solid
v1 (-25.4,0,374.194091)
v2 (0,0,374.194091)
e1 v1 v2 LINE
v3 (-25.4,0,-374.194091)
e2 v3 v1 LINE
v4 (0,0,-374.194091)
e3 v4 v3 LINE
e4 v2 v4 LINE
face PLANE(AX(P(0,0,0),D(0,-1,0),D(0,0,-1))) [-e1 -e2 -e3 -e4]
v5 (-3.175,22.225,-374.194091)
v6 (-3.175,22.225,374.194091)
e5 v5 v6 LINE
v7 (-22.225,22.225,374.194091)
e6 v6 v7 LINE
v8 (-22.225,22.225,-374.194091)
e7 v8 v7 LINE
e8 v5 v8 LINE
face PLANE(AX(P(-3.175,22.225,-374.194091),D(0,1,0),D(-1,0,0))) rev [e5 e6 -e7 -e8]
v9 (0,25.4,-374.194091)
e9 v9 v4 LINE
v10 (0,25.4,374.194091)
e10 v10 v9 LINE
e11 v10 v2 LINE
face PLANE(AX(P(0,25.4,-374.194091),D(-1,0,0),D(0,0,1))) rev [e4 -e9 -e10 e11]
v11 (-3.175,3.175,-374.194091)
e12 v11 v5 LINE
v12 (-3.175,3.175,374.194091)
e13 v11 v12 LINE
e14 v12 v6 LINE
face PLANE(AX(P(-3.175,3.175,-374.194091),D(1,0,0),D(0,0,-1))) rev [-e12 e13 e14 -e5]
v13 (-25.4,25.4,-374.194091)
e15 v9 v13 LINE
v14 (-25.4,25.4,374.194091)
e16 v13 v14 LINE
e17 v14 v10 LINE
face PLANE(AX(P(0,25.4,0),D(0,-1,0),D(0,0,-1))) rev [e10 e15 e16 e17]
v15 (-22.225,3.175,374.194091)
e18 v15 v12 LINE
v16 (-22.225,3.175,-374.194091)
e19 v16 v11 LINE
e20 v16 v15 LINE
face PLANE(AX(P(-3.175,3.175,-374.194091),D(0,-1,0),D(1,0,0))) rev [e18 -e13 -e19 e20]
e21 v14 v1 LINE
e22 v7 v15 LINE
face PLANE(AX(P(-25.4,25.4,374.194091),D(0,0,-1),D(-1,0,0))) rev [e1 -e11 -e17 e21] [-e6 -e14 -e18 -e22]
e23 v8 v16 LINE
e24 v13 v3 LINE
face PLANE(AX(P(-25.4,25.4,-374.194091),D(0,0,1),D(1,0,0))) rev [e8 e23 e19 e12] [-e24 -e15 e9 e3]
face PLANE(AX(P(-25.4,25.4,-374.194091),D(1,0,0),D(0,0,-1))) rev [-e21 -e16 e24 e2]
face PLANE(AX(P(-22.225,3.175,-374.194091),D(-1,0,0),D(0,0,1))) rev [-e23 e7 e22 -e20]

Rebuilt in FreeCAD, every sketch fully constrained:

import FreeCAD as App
import Part
import Sketcher
from FreeCAD import Vector
Q = App.Units.Quantity

doc = App.newDocument("Part")
body = doc.addObject("PartDesign::Body", "Body")

# Sketch on XZ plane
sketch1 = body.newObject("Sketcher::SketchObject", "Sketch")
sketch1.AttachmentSupport = (doc.getObject("XZ_Plane"), [""])
sketch1.MapMode = "FlatFace"
sketch1.addGeometry(Part.LineSegment(Vector(-25, -374, 0), Vector(-25, 374, 0)), False)
sketch1.addGeometry(Part.LineSegment(Vector(-25, 374, 0), Vector(0, 374, 0)), False)
sketch1.addGeometry(Part.LineSegment(Vector(0, 374, 0), Vector(0, -374, 0)), False)
sketch1.addGeometry(Part.LineSegment(Vector(0, -374, 0), Vector(-25, -374, 0)), False)
sketch1.addConstraint(Sketcher.Constraint("Coincident", 0, 2, 1, 1))
sketch1.addConstraint(Sketcher.Constraint("Coincident", 1, 2, 2, 1))
sketch1.addConstraint(Sketcher.Constraint("Coincident", 2, 2, 3, 1))
sketch1.addConstraint(Sketcher.Constraint("Coincident", 3, 2, 0, 1))
sketch1.addConstraint(Sketcher.Constraint("Vertical", 0))
sketch1.addConstraint(Sketcher.Constraint("Horizontal", 1))
sketch1.addConstraint(Sketcher.Constraint("Vertical", 2))
sketch1.addConstraint(Sketcher.Constraint("Horizontal", 3))
sketch1.addConstraint(Sketcher.Constraint("Symmetric", 1, 2, 2, 2, -1, 1))
sketch1.addConstraint(Sketcher.Constraint("DistanceX", 1, 1, 1, 2, Q("1 in")))
sketch1.addConstraint(Sketcher.Constraint("DistanceY", 0, 1, 0, 2, 748.388181))
pad1 = body.newObject("PartDesign::Pad", "Pad")
pad1.Profile = sketch1
pad1.Length = Q("1 in")
pad1.Reversed = True

# Sketch on XY plane
sketch2 = body.newObject("Sketcher::SketchObject", "Sketch001")
sketch2.AttachmentSupport = (doc.getObject("XY_Plane"), [""])
sketch2.MapMode = "FlatFace"
sketch2.AttachmentOffset = App.Placement(Vector(0, 0, 374.194091), App.Rotation())
sketch2.addGeometry(Part.LineSegment(Vector(-22, 22, 0), Vector(-22, 3, 0)), False)
sketch2.addGeometry(Part.LineSegment(Vector(-22, 3, 0), Vector(-3, 3, 0)), False)
sketch2.addGeometry(Part.LineSegment(Vector(-3, 3, 0), Vector(-3, 22, 0)), False)
sketch2.addGeometry(Part.LineSegment(Vector(-3, 22, 0), Vector(-22, 22, 0)), False)
sketch2.addConstraint(Sketcher.Constraint("Coincident", 0, 2, 1, 1))
sketch2.addConstraint(Sketcher.Constraint("Coincident", 1, 2, 2, 1))
sketch2.addConstraint(Sketcher.Constraint("Coincident", 2, 2, 3, 1))
sketch2.addConstraint(Sketcher.Constraint("Coincident", 3, 2, 0, 1))
sketch2.addConstraint(Sketcher.Constraint("Vertical", 0))
sketch2.addConstraint(Sketcher.Constraint("Horizontal", 1))
sketch2.addConstraint(Sketcher.Constraint("Vertical", 2))
sketch2.addConstraint(Sketcher.Constraint("Horizontal", 3))
sketch2.addConstraint(Sketcher.Constraint("Equal", 3, 0))
sketch2.addConstraint(Sketcher.Constraint("DistanceX", 1, 1, 1, 2, Q("0.75 in")))
sketch2.addConstraint(Sketcher.Constraint("DistanceX", 0, 2, -1, 1, Q("0.875 in")))
sketch2.addConstraint(Sketcher.Constraint("DistanceY", -1, 1, 0, 2, Q("0.125 in")))
pocket1 = body.newObject("PartDesign::Pocket", "Pocket")
pocket1.Profile = sketch2
pocket1.Type = "ThroughAll"

doc.recompute()
